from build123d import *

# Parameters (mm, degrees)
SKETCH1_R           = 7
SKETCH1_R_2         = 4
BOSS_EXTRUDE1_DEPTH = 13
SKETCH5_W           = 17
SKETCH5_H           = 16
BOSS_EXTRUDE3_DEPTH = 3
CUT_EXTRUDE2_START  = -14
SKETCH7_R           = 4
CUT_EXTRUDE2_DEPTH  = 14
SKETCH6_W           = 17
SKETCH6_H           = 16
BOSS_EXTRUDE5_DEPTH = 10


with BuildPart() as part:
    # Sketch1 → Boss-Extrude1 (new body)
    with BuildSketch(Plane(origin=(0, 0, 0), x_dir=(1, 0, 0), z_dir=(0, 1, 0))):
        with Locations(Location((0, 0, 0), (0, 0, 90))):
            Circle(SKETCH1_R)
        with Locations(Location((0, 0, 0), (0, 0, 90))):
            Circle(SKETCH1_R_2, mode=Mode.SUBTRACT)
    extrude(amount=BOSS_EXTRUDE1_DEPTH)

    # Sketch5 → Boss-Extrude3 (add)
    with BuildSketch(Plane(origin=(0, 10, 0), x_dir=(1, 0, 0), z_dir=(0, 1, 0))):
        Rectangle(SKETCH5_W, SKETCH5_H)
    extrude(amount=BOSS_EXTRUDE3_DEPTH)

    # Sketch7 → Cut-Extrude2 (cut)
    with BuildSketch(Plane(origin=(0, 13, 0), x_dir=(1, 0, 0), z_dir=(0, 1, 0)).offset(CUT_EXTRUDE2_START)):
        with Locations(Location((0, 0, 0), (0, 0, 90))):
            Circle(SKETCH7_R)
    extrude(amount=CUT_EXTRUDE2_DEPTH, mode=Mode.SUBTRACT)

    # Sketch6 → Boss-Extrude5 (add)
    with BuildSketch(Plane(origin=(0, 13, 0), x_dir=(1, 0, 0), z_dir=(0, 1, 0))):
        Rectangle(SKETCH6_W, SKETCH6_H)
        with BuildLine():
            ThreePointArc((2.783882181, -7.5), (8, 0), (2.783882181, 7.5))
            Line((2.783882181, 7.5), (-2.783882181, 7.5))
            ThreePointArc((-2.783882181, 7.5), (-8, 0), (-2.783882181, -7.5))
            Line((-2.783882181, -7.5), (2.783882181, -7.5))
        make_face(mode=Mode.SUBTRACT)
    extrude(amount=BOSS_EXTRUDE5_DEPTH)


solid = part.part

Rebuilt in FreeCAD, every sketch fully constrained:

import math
import FreeCAD as App
import Part
import Sketcher

V = App.Vector
Q = App.Units.Quantity


def add_polygon(sketch, points):
    """Adds a closed chain of lines whose ends are joined by coincident constraints."""
    first, n = sketch.GeometryCount, len(points)
    for a, b in zip(points, points[1:] + points[:1]):
        sketch.addGeometry(Part.LineSegment(App.Vector(*a, 0), App.Vector(*b, 0)), False)
    for i in range(n):
        sketch.addConstraint(Sketcher.Constraint("Coincident", first + i, 2, first + (i + 1) % n, 1))

doc = App.newDocument("Part")
body = doc.addObject("PartDesign::Body", "Body")

sketch1 = body.newObject("Sketcher::SketchObject", "Sketch")
sketch1.AttachmentSupport = (doc.getObject("XZ_Plane"), [""])
sketch1.MapMode = "FlatFace"
sketch1.addGeometry([
    Part.Circle(V(0, 0, 0), V(0, 0, 1), 7),
    Part.Circle(V(0, 0, 0), V(0, 0, 1), 4),
], False)
sketch1.addConstraint([
    Sketcher.Constraint("Coincident", 0, 3, -1, 1),
    Sketcher.Constraint("Coincident", 1, 3, -1, 1),
    Sketcher.Constraint("Diameter", 0, Q("14 mm")),
    Sketcher.Constraint("Diameter", 1, Q("8 mm")),
])
pad1 = body.newObject("PartDesign::Pad", "Pad")
pad1.Profile = sketch1
pad1.Length = 13
pad1.Reversed = True

sketch2 = body.newObject("Sketcher::SketchObject", "Sketch001")
sketch2.AttachmentSupport = (doc.getObject("XZ_Plane"), [""])
sketch2.MapMode = "FlatFace"
sketch2.AttachmentOffset = App.Placement(V(0, 0, -10), App.Rotation())
add_polygon(sketch2, [(-8, -8), (-8, 8), (8, 8), (8, -8)])
sketch2.addConstraint([
    Sketcher.Constraint("Vertical", 0),
    Sketcher.Constraint("Horizontal", 1),
    Sketcher.Constraint("Vertical", 2),
    Sketcher.Constraint("Horizontal", 3),
    Sketcher.Constraint("Symmetric", 0, 2, 2, 2, -1, 1),
    Sketcher.Constraint("DistanceX", 1, 1, 1, 2, Q("17 mm")),
    Sketcher.Constraint("DistanceY", 0, 1, 0, 2, Q("16 mm")),
])
pad2 = body.newObject("PartDesign::Pad", "Pad001")
pad2.Profile = sketch2
pad2.Length = 3
pad2.Reversed = True

sketch3 = body.newObject("Sketcher::SketchObject", "Sketch002")
sketch3.AttachmentSupport = (doc.getObject("XZ_Plane"), [""])
sketch3.MapMode = "FlatFace"
sketch3.AttachmentOffset = App.Placement(V(0, 0, 1), App.Rotation())
sketch3.addGeometry(Part.Circle(V(0, 0, 0), V(0, 0, 1), 4), False)
sketch3.addConstraint([
    Sketcher.Constraint("Coincident", 0, 3, -1, 1),
    Sketcher.Constraint("Diameter", 0, Q("8 mm")),
])
pocket1 = body.newObject("PartDesign::Pocket", "Pocket")
pocket1.Profile = sketch3
pocket1.Length = 14

sketch4 = body.newObject("Sketcher::SketchObject", "Sketch003")
sketch4.AttachmentSupport = (doc.getObject("XZ_Plane"), [""])
sketch4.MapMode = "FlatFace"
sketch4.AttachmentOffset = App.Placement(V(0, 0, -13), App.Rotation())
add_polygon(sketch4, [(-8, -8), (-8, 8), (8, 8), (8, -8)])
sketch4.addGeometry(Part.ArcOfCircle(Part.Circle(V(0, 0, 0), V(0, 0, 1), 8), math.radians(-70), math.radians(70)), False)
sketch4.addGeometry(Part.LineSegment(V(3, 8, 0), V(-3, 8, 0)), False)
sketch4.addGeometry(Part.ArcOfCircle(Part.Circle(V(0, 0, 0), V(0, 0, 1), 8), math.radians(110), math.radians(250)), False)
sketch4.addGeometry(Part.LineSegment(V(-3, -8, 0), V(3, -8, 0)), False)
sketch4.addConstraint([
    Sketcher.Constraint("Coincident", 4, 2, 5, 1),
    Sketcher.Constraint("Coincident", 5, 2, 6, 1),
    Sketcher.Constraint("Coincident", 6, 2, 7, 1),
    Sketcher.Constraint("Coincident", 7, 2, 4, 1),
    Sketcher.Constraint("Vertical", 0),
    Sketcher.Constraint("Horizontal", 1),
    Sketcher.Constraint("Vertical", 2),
    Sketcher.Constraint("Horizontal", 3),
    Sketcher.Constraint("Horizontal", 5),
    Sketcher.Constraint("Horizontal", 7),
    Sketcher.Constraint("Coincident", 4, 3, -1, 1),
    Sketcher.Constraint("Coincident", 6, 3, -1, 1),
    Sketcher.Constraint("Equal", 4, 6),
    Sketcher.Constraint("Symmetric", 0, 2, 2, 2, -1, 1),
    Sketcher.Constraint("Vertical", 5, 2, 6, 2),
    Sketcher.Constraint("Radius", 4, Q("8 mm")),
    Sketcher.Constraint("DistanceX", 1, 1, 1, 2, Q("17 mm")),
    Sketcher.Constraint("DistanceY", 0, 1, 0, 2, Q("16 mm")),
    Sketcher.Constraint("DistanceY", 6, 2, 5, 2, Q("15 mm")),
])
pad3 = body.newObject("PartDesign::Pad", "Pad002")
pad3.Profile = sketch4
pad3.Length = 10
pad3.Reversed = True

doc.recompute()
